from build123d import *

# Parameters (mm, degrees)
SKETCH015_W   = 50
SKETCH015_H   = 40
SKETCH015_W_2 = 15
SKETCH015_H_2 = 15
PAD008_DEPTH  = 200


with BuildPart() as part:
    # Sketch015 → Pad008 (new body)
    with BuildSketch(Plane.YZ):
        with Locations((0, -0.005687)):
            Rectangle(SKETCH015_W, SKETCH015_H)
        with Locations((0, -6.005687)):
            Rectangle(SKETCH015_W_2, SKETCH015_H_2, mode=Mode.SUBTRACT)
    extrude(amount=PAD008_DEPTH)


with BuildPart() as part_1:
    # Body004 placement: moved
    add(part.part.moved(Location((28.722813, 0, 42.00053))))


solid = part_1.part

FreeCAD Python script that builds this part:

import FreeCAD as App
import Part
import Sketcher

V = App.Vector


def add_polygon(sketch, points):
    """Adds a closed chain of lines whose ends are joined by coincident constraints."""
    first, n = sketch.GeometryCount, len(points)
    for a, b in zip(points, points[1:] + points[:1]):
        sketch.addGeometry(Part.LineSegment(App.Vector(*a, 0), App.Vector(*b, 0)), False)
    for i in range(n):
        sketch.addConstraint(Sketcher.Constraint("Coincident", first + i, 2, first + (i + 1) % n, 1))

doc = App.newDocument("Part")
params = doc.addObject("Spreadsheet::Sheet", "Params")
for row, (alias, value) in enumerate([
    ("sketch1_width", "50 mm"),
    ("sketch1_width2", "15 mm"),
    ("sketch1_height", "40 mm"),
    ("pad1_length", "200 mm"),
], start=1):
    params.set(f"A{row}", alias)
    params.set(f"B{row}", "=" + value)
    params.setAlias(f"B{row}", alias)

body = doc.addObject("PartDesign::Body", "Body")

# Sketch on YZ plane
sketch1 = body.newObject("Sketcher::SketchObject", "Sketch")
sketch1.AttachmentSupport = (doc.getObject("YZ_Plane"), [""])
sketch1.MapMode = "FlatFace"
add_polygon(sketch1, [(-25, 20), (-25, -20), (25, -20), (25, 20)])  # lines 0-3
add_polygon(sketch1, [(8, -14), (-8, -14), (-8, 1), (8, 1)])  # lines 4-7
sketch1.addConstraint(Sketcher.Constraint("Vertical", 0))
sketch1.addConstraint(Sketcher.Constraint("Horizontal", 1))
sketch1.addConstraint(Sketcher.Constraint("Vertical", 2))
sketch1.addConstraint(Sketcher.Constraint("Horizontal", 3))
sketch1.addConstraint(Sketcher.Constraint("Horizontal", 4))
sketch1.addConstraint(Sketcher.Constraint("Vertical", 5))
sketch1.addConstraint(Sketcher.Constraint("Horizontal", 6))
sketch1.addConstraint(Sketcher.Constraint("Vertical", 7))
sketch1.addConstraint(Sketcher.Constraint("Equal", 6, 5))
sketch1.addConstraint(Sketcher.Constraint("DistanceX", 1, 1, 1, 2, 50.0))
sketch1.addConstraint(Sketcher.Constraint("DistanceX", 4, 2, 4, 1, 15.0))
sketch1.addConstraint(Sketcher.Constraint("DistanceY", 0, 2, 0, 1, 40.0))
sketch1.addConstraint(Sketcher.Constraint("DistanceX", 0, 2, -1, 1, 25.0))
sketch1.addConstraint(Sketcher.Constraint("DistanceX", 4, 2, -1, 1, 7.5))
sketch1.addConstraint(Sketcher.Constraint("DistanceY", 0, 2, 4, 2, 6.5))
sketch1.addConstraint(Sketcher.Constraint("DistanceY", 0, 2, -1, 1, 20.005687))
sketch1.setExpression("Constraints[17]", "Params.sketch1_width")
sketch1.setExpression("Constraints[18]", "Params.sketch1_width2")
sketch1.setExpression("Constraints[19]", "Params.sketch1_height")
pad1 = body.newObject("PartDesign::Pad", "Pad")
pad1.Profile = sketch1
pad1.setExpression("Length", "Params.pad1_length")
body2 = doc.addObject("PartDesign::Body", "Body001")
doc.recompute()

body.Placement = App.Placement(V(28.722813, 0, 42.00053), App.Rotation(V(0, 0, 1), 0))
boolean = body2.newObject("PartDesign::Boolean", "Boolean")
boolean.Type = "Fuse"
boolean.addObjects([body])

doc.recompute()
